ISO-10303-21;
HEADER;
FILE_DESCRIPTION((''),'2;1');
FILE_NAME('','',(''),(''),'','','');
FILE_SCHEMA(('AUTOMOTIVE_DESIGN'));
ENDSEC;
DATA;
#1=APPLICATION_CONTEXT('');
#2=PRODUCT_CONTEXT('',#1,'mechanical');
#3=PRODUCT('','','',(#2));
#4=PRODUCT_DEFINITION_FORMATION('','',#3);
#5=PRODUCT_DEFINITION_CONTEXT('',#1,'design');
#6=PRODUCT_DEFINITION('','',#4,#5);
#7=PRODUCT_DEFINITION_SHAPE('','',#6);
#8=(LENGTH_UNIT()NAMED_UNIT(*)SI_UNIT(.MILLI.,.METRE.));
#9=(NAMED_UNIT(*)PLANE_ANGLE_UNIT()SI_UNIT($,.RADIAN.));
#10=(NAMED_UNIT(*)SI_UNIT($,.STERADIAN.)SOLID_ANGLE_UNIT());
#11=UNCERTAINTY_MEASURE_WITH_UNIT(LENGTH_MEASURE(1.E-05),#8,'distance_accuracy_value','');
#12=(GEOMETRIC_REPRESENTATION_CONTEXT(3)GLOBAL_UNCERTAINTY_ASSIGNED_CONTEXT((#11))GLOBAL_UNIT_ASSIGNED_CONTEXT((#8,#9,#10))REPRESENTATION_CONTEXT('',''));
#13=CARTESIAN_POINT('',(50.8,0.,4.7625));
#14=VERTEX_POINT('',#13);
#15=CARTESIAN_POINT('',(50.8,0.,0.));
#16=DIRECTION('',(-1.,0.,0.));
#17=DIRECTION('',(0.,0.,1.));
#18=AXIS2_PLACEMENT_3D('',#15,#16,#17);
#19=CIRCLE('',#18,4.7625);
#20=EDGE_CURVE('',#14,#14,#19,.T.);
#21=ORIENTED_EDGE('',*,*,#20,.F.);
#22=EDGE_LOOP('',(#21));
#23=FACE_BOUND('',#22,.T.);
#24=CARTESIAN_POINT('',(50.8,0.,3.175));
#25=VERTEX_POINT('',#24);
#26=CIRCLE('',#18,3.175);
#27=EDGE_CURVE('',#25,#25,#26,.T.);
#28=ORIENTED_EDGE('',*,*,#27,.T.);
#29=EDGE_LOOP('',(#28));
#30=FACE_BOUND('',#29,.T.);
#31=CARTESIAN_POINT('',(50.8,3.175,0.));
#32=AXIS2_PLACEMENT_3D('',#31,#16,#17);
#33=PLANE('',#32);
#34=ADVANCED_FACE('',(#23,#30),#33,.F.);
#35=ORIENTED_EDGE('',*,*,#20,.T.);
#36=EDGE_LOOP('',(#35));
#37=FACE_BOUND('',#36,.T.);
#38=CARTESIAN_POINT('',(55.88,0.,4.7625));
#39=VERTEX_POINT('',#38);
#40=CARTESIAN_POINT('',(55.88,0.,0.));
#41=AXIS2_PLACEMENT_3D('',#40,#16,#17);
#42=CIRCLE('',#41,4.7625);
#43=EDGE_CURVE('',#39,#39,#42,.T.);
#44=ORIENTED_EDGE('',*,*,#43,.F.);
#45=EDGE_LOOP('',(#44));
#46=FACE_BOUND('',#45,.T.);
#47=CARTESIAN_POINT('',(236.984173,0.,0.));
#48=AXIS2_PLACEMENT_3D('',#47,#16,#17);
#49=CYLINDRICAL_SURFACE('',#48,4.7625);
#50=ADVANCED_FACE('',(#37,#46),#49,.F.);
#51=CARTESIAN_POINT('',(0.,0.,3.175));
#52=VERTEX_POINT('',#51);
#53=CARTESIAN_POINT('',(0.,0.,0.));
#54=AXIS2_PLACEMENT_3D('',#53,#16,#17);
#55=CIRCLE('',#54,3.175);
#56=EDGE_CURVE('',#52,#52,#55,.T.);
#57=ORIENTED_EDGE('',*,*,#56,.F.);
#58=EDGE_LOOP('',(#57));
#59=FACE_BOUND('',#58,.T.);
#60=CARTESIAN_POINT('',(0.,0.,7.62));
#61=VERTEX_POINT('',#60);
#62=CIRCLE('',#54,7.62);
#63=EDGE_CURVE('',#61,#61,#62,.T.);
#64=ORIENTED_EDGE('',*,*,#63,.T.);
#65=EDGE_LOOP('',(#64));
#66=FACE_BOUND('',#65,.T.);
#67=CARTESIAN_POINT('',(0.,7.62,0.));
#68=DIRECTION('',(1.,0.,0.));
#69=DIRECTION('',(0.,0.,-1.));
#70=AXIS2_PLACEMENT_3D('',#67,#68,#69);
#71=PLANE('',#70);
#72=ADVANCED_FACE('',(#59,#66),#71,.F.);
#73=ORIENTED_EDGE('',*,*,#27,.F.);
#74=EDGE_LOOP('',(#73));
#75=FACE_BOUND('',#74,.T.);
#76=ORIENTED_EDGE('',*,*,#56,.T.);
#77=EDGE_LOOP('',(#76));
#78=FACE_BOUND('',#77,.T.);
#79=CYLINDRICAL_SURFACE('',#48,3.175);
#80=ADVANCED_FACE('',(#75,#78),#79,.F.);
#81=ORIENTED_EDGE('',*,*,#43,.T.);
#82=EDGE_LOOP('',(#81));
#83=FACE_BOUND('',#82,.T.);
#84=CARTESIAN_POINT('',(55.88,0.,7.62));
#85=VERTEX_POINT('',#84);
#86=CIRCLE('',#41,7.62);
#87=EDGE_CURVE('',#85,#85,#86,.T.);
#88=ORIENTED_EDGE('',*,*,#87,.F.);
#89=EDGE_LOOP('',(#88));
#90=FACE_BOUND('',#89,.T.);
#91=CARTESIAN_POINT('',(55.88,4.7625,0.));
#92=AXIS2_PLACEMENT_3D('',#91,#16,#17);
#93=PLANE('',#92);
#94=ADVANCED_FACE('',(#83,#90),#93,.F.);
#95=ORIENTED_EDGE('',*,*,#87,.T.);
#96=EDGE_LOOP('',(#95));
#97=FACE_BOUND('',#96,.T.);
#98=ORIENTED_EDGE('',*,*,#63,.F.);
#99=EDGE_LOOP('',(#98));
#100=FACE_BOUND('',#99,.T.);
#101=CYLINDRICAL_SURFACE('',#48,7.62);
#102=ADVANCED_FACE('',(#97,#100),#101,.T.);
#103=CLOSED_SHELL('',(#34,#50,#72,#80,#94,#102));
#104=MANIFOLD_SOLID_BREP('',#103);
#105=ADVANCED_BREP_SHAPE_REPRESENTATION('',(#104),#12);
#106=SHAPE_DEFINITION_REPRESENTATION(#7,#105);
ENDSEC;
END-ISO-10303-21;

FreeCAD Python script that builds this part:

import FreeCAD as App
import Part
import Sketcher
from FreeCAD import Vector
Q = App.Units.Quantity

doc = App.newDocument("Part")
body = doc.addObject("PartDesign::Body", "Body")

sketch1 = body.newObject("Sketcher::SketchObject", "Sketch")
sketch1.AttachmentSupport = (doc.getObject("XY_Plane"), [""])
sketch1.MapMode = "FlatFace"
sketch1.addGeometry([
    Part.LineSegment(Vector(0, 3.2, 0), Vector(50.8, 3.2, 0)),
    Part.LineSegment(Vector(50.8, 3.2, 0), Vector(50.8, 4.8, 0)),
    Part.LineSegment(Vector(50.8, 4.8, 0), Vector(55.9, 4.8, 0)),
    Part.LineSegment(Vector(55.9, 4.8, 0), Vector(55.9, 7.6, 0)),
    Part.LineSegment(Vector(55.9, 7.6, 0), Vector(0, 7.6, 0)),
    Part.LineSegment(Vector(0, 7.6, 0), Vector(0, 3.2, 0)),
], False)
sketch1.addConstraint([
    Sketcher.Constraint("Coincident", 0, 2, 1, 1),
    Sketcher.Constraint("Coincident", 1, 2, 2, 1),
    Sketcher.Constraint("Coincident", 2, 2, 3, 1),
    Sketcher.Constraint("Coincident", 3, 2, 4, 1),
    Sketcher.Constraint("Coincident", 4, 2, 5, 1),
    Sketcher.Constraint("Coincident", 5, 2, 0, 1),
    Sketcher.Constraint("Horizontal", 0),
    Sketcher.Constraint("Vertical", 1),
    Sketcher.Constraint("Horizontal", 2),
    Sketcher.Constraint("Vertical", 3),
    Sketcher.Constraint("Horizontal", 4),
    Sketcher.Constraint("Vertical", 5),
    Sketcher.Constraint("PointOnObject", 4, 2, -2),
    Sketcher.Constraint("DistanceX", 0, 1, 0, 2, Q("2 in")),
    Sketcher.Constraint("DistanceX", 2, 1, 2, 2, Q("0.2 in")),
    Sketcher.Constraint("DistanceY", -1, 1, 3, 2, Q("0.3 in")),
    Sketcher.Constraint("DistanceY", 1, 1, 1, 2, Q("0.0625 in")),
    Sketcher.Constraint("DistanceY", 5, 2, 5, 1, Q("0.175 in")),
])
revolution = body.newObject("PartDesign::Revolution", "Revolution")
revolution.Profile = sketch1
revolution.ReferenceAxis = (sketch1, ["H_Axis"])
revolution.Angle = 360

doc.recompute()
